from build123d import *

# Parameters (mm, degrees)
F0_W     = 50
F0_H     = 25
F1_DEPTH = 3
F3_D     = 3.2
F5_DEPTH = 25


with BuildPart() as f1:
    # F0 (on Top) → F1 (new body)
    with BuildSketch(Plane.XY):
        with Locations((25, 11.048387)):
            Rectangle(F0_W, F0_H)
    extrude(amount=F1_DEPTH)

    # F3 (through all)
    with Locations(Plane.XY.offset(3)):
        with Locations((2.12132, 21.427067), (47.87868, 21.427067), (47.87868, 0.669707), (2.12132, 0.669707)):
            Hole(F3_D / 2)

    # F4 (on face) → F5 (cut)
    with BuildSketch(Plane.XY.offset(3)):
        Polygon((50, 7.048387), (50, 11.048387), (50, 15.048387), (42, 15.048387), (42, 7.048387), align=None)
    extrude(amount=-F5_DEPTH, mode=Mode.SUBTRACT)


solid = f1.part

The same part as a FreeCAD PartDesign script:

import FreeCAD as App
import Part
import Sketcher
Q = App.Units.Quantity


def add_polygon(sketch, points):
    """Adds a closed chain of lines whose ends are joined by coincident constraints."""
    first, n = sketch.GeometryCount, len(points)
    for a, b in zip(points, points[1:] + points[:1]):
        sketch.addGeometry(Part.LineSegment(App.Vector(*a, 0), App.Vector(*b, 0)), False)
    for i in range(n):
        sketch.addConstraint(Sketcher.Constraint("Coincident", first + i, 2, first + (i + 1) % n, 1))

doc = App.newDocument("Part")
body = doc.addObject("PartDesign::Body", "Body")

sketch1 = body.newObject("Sketcher::SketchObject", "Sketch")
sketch1.AttachmentSupport = (doc.getObject("XY_Plane"), [""])
sketch1.MapMode = "FlatFace"
add_polygon(sketch1, [(0, 24), (0, -1), (50, -1), (50, 24)])
sketch1.addConstraint([
    Sketcher.Constraint("Vertical", 0),
    Sketcher.Constraint("Horizontal", 1),
    Sketcher.Constraint("Vertical", 2),
    Sketcher.Constraint("Horizontal", 3),
    Sketcher.Constraint("PointOnObject", 0, 2, -2),
    Sketcher.Constraint("DistanceX", 1, 1, 1, 2, Q("50 mm")),
    Sketcher.Constraint("DistanceY", 0, 2, 0, 1, Q("25 mm")),
    Sketcher.Constraint("DistanceY", 0, 2, -1, 1, Q("1.451613 mm")),
])
pad1 = body.newObject("PartDesign::Pad", "Pad")
pad1.Profile = sketch1
pad1.Length = 3

sketch2 = body.newObject("Sketcher::SketchObject", "Sketch001")
sketch2.AttachmentSupport = (doc.getObject("XY_Plane"), [""])
sketch2.MapMode = "FlatFace"
sketch2.AttachmentOffset = App.Placement(App.Vector(0, 0, 3), App.Rotation())
sketch2.addGeometry([
    Part.Circle(App.Vector(2.1, 21.4, 0), App.Vector(0, 0, 1), 1.6),
    Part.Circle(App.Vector(47.9, 21.4, 0), App.Vector(0, 0, 1), 1.6),
    Part.Circle(App.Vector(47.9, 0.7, 0), App.Vector(0, 0, 1), 1.6),
    Part.Circle(App.Vector(2.1, 0.7, 0), App.Vector(0, 0, 1), 1.6),
], False)
sketch2.addConstraint([
    Sketcher.Constraint("Equal", 0, 1),
    Sketcher.Constraint("Equal", 1, 2),
    Sketcher.Constraint("Equal", 2, 3),
    Sketcher.Constraint("Horizontal", 0, 3, 1, 3),
    Sketcher.Constraint("Horizontal", 2, 3, 3, 3),
    Sketcher.Constraint("Vertical", 1, 3, 2, 3),
    Sketcher.Constraint("Vertical", 0, 3, 3, 3),
    Sketcher.Constraint("Diameter", 0, Q("3.2 mm")),
    Sketcher.Constraint("DistanceX", -1, 1, 0, 3, Q("2.12132 mm")),
    Sketcher.Constraint("DistanceX", -1, 1, 1, 3, Q("47.87868 mm")),
    Sketcher.Constraint("DistanceY", 2, 3, 1, 3, Q("20.75736 mm")),
    Sketcher.Constraint("DistanceY", -1, 1, 0, 3, Q("21.427067 mm")),
])
doc.recompute()
hole = body.newObject("PartDesign::Hole", "Hole")
hole.Profile = sketch2
hole.ThreadType = "None"
hole.Diameter = 3.2
hole.DepthType = "ThroughAll"

sketch3 = body.newObject("Sketcher::SketchObject", "Sketch002")
sketch3.AttachmentSupport = (doc.getObject("XY_Plane"), [""])
sketch3.MapMode = "FlatFace"
sketch3.AttachmentOffset = App.Placement(App.Vector(0, 0, 3), App.Rotation())
add_polygon(sketch3, [(50, 7), (50, 15), (42, 15), (42, 7)])
sketch3.addConstraint([
    Sketcher.Constraint("Vertical", 0),
    Sketcher.Constraint("Horizontal", 1),
    Sketcher.Constraint("Vertical", 2),
    Sketcher.Constraint("Horizontal", 3),
    Sketcher.Constraint("Equal", 3, 0),
    Sketcher.Constraint("DistanceX", 1, 2, 1, 1, Q("8 mm")),
    Sketcher.Constraint("DistanceX", -1, 1, 0, 2, Q("50 mm")),
    Sketcher.Constraint("DistanceY", -1, 1, 0, 2, Q("15.048387 mm")),
])
pocket1 = body.newObject("PartDesign::Pocket", "Pocket")
pocket1.Profile = sketch3
pocket1.Length = 25

doc.recompute()
